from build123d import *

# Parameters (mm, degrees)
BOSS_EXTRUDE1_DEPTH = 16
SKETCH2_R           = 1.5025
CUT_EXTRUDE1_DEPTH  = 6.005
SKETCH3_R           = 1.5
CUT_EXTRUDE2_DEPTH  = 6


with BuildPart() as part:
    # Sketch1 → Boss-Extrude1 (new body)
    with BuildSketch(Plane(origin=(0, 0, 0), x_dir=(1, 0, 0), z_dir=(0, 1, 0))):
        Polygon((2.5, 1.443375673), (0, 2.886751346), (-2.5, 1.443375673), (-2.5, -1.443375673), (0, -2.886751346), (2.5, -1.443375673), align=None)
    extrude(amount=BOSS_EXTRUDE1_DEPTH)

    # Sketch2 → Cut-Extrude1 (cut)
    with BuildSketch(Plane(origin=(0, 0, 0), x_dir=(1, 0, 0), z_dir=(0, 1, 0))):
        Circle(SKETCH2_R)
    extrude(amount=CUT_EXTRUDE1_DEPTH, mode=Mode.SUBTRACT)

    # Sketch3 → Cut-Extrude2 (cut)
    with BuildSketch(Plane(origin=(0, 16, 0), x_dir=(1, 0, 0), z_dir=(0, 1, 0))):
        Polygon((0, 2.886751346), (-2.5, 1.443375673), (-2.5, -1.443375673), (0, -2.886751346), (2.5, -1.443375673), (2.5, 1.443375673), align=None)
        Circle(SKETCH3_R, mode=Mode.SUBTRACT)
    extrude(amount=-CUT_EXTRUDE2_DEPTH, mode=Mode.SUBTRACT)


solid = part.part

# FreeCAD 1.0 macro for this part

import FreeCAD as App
import Part
import Sketcher
from FreeCAD import Vector
Q = App.Units.Quantity

doc = App.newDocument("Part")
body = doc.addObject("PartDesign::Body", "Body")

# Sketch on XZ plane
sketch1 = doc.addObject("Sketcher::SketchObject", "Sketch")
body.addObject(sketch1)
sketch1.AttachmentSupport = (doc.XZ_Plane, [""])
sketch1.MapMode = "FlatFace"
sketch1.addGeometry(Part.LineSegment(Vector(2.5, -1.4, 0), Vector(0, -2.9, 0)), False)
sketch1.addGeometry(Part.LineSegment(Vector(0, -2.9, 0), Vector(-2.5, -1.4, 0)), False)
sketch1.addGeometry(Part.LineSegment(Vector(-2.5, -1.4, 0), Vector(-2.5, 1.4, 0)), False)
sketch1.addGeometry(Part.LineSegment(Vector(-2.5, 1.4, 0), Vector(0, 2.9, 0)), False)
sketch1.addGeometry(Part.LineSegment(Vector(0, 2.9, 0), Vector(2.5, 1.4, 0)), False)
sketch1.addGeometry(Part.LineSegment(Vector(2.5, 1.4, 0), Vector(2.5, -1.4, 0)), False)
sketch1.addConstraint(Sketcher.Constraint("Coincident", 0, 2, 1, 1))
sketch1.addConstraint(Sketcher.Constraint("Coincident", 1, 2, 2, 1))
sketch1.addConstraint(Sketcher.Constraint("Coincident", 2, 2, 3, 1))
sketch1.addConstraint(Sketcher.Constraint("Coincident", 3, 2, 4, 1))
sketch1.addConstraint(Sketcher.Constraint("Coincident", 4, 2, 5, 1))
sketch1.addConstraint(Sketcher.Constraint("Coincident", 5, 2, 0, 1))
sketch1.addConstraint(Sketcher.Constraint("Vertical", 2))
sketch1.addConstraint(Sketcher.Constraint("Vertical", 5))
sketch1.addConstraint(Sketcher.Constraint("Symmetric", 0, 2, 3, 2, -1, 1))
sketch1.addConstraint(Sketcher.Constraint("Symmetric", 1, 2, 4, 2, -1, 1))
sketch1.addConstraint(Sketcher.Constraint("PointOnObject", 0, 2, -2))
sketch1.addConstraint(Sketcher.Constraint("Parallel", 0, 3))
sketch1.addConstraint(Sketcher.Constraint("Horizontal", 2, 2, 4, 2))
sketch1.addConstraint(Sketcher.Constraint("Angle", 0, Q("-150 deg")))
sketch1.addConstraint(Sketcher.Constraint("DistanceX", 2, 2, 4, 2, Q("5 mm")))
sketch1.addConstraint(Sketcher.Constraint("DistanceY", 2, 1, 2, 2, Q("2.886751 mm")))
pad1 = doc.addObject("PartDesign::Pad", "Pad")
body.addObject(pad1)
pad1.Profile = sketch1
pad1.Length = 16
pad1.Reversed = True

# Sketch on XZ plane
sketch2 = doc.addObject("Sketcher::SketchObject", "Sketch001")
body.addObject(sketch2)
sketch2.AttachmentSupport = (doc.XZ_Plane, [""])
sketch2.MapMode = "FlatFace"
sketch2.addGeometry(Part.Circle(Vector(0, 0, 0), Vector(0, 0, 1), 1.5), False)
sketch2.addConstraint(Sketcher.Constraint("Coincident", 0, 3, -1, 1))
sketch2.addConstraint(Sketcher.Constraint("Diameter", 0, Q("3.005 mm")))
pocket1 = doc.addObject("PartDesign::Pocket", "Pocket")
body.addObject(pocket1)
pocket1.Profile = sketch2
pocket1.Length = 6.005

# Sketch on XZ plane
sketch3 = doc.addObject("Sketcher::SketchObject", "Sketch002")
body.addObject(sketch3)
sketch3.AttachmentSupport = (doc.XZ_Plane, [""])
sketch3.MapMode = "FlatFace"
sketch3.AttachmentOffset = App.Placement(Vector(0, 0, -16), App.Rotation())
sketch3.addGeometry(Part.LineSegment(Vector(0, -2.9, 0), Vector(-2.5, -1.4, 0)), False)
sketch3.addGeometry(Part.LineSegment(Vector(-2.5, -1.4, 0), Vector(-2.5, 1.4, 0)), False)
sketch3.addGeometry(Part.LineSegment(Vector(-2.5, 1.4, 0), Vector(0, 2.9, 0)), False)
sketch3.addGeometry(Part.LineSegment(Vector(0, 2.9, 0), Vector(2.5, 1.4, 0)), False)
sketch3.addGeometry(Part.LineSegment(Vector(2.5, 1.4, 0), Vector(2.5, -1.4, 0)), False)
sketch3.addGeometry(Part.LineSegment(Vector(2.5, -1.4, 0), Vector(0, -2.9, 0)), False)
sketch3.addGeometry(Part.Circle(Vector(0, 0, 0), Vector(0, 0, 1), 1.5), False)
sketch3.addConstraint(Sketcher.Constraint("Coincident", 0, 2, 1, 1))
sketch3.addConstraint(Sketcher.Constraint("Coincident", 1, 2, 2, 1))
sketch3.addConstraint(Sketcher.Constraint("Coincident", 2, 2, 3, 1))
sketch3.addConstraint(Sketcher.Constraint("Coincident", 3, 2, 4, 1))
sketch3.addConstraint(Sketcher.Constraint("Coincident", 4, 2, 5, 1))
sketch3.addConstraint(Sketcher.Constraint("Coincident", 5, 2, 0, 1))
sketch3.addConstraint(Sketcher.Constraint("Vertical", 1))
sketch3.addConstraint(Sketcher.Constraint("Vertical", 4))
sketch3.addConstraint(Sketcher.Constraint("Coincident", 6, 3, -1, 1))
sketch3.addConstraint(Sketcher.Constraint("Symmetric", 0, 2, 3, 2, -1, 1))
sketch3.addConstraint(Sketcher.Constraint("Symmetric", 2, 2, 5, 2, -1, 1))
sketch3.addConstraint(Sketcher.Constraint("PointOnObject", 2, 2, -2))
sketch3.addConstraint(Sketcher.Constraint("Parallel", 2, 5))
sketch3.addConstraint(Sketcher.Constraint("Horizontal", 1, 2, 3, 2))
sketch3.addConstraint(Sketcher.Constraint("Diameter", 6, Q("3 mm")))
sketch3.addConstraint(Sketcher.Constraint("Angle", 0, Q("150 deg")))
sketch3.addConstraint(Sketcher.Constraint("DistanceX", 1, 2, 3, 2, Q("5 mm")))
sketch3.addConstraint(Sketcher.Constraint("DistanceY", 1, 1, 1, 2, Q("2.886751 mm")))
pocket2 = doc.addObject("PartDesign::Pocket", "Pocket001")
body.addObject(pocket2)
pocket2.Profile = sketch3
pocket2.Length = 6
pocket2.Reversed = True

doc.recompute()
